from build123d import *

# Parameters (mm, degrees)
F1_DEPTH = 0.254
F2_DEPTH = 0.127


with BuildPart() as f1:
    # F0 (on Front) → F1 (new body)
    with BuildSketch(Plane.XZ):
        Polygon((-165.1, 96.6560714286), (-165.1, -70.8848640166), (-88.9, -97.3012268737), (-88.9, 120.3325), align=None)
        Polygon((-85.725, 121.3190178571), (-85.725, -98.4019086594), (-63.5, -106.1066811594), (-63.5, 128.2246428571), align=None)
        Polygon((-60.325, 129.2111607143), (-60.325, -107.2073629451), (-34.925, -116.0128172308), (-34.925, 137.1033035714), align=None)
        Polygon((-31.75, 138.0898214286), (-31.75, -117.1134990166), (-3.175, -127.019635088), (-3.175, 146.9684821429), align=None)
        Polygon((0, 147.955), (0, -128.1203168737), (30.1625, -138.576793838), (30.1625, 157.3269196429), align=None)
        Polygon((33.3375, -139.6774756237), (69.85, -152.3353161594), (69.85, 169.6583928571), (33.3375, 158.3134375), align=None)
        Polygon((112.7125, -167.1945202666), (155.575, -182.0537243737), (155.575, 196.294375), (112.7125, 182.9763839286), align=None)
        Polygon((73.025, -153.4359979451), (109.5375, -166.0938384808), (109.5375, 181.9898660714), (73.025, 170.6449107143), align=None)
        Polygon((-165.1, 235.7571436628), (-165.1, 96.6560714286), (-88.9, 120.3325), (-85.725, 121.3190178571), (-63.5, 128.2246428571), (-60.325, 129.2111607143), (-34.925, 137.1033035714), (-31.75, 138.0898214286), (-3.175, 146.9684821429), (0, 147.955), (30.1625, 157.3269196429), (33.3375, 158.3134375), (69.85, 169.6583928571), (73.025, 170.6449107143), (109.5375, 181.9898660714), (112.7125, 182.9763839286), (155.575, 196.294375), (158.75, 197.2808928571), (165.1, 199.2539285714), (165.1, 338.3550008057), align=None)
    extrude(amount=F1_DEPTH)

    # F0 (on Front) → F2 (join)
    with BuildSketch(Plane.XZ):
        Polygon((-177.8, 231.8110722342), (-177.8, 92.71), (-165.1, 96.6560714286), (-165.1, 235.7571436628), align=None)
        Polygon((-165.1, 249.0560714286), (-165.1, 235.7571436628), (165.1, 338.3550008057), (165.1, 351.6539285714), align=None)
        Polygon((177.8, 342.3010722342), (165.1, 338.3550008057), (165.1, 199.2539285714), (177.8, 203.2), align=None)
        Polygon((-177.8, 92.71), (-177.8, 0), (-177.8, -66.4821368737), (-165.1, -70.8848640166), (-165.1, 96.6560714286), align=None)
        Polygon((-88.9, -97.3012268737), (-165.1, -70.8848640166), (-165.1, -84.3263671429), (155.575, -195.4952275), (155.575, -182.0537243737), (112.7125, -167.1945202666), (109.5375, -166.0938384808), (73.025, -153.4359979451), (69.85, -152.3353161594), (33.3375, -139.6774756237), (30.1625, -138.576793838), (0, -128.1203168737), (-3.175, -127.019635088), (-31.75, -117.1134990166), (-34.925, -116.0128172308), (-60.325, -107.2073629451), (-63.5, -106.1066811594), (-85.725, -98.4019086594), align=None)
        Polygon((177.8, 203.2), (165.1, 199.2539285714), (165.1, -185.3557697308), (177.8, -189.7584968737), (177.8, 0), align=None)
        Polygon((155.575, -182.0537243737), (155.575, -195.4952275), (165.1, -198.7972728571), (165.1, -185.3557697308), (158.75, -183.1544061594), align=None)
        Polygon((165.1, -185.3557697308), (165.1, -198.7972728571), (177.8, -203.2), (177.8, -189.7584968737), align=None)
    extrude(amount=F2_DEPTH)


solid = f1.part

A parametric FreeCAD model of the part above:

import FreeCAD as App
import Part
import Sketcher

V = App.Vector
Q = App.Units.Quantity


def add_polygon(sketch, points):
    """Adds a closed chain of lines whose ends are joined by coincident constraints."""
    first, n = sketch.GeometryCount, len(points)
    for a, b in zip(points, points[1:] + points[:1]):
        sketch.addGeometry(Part.LineSegment(App.Vector(*a, 0), App.Vector(*b, 0)), False)
    for i in range(n):
        sketch.addConstraint(Sketcher.Constraint("Coincident", first + i, 2, first + (i + 1) % n, 1))

doc = App.newDocument("Part")
body = doc.addObject("PartDesign::Body", "Body")

# Sketch on XZ plane
sketch1 = body.newObject("Sketcher::SketchObject", "Sketch")
sketch1.AttachmentSupport = (doc.getObject("XZ_Plane"), [""])
sketch1.MapMode = "FlatFace"
add_polygon(sketch1, [(-165.1, -70.884864), (-88.9, -97.301227), (-88.9, 120.3325), (-85.725, 121.319018), (-85.725, -98.401909), (-63.5, -106.106681), (-63.5, 128.224643), (-60.325, 129.211161), (-60.325, -107.207363), (-34.925, -116.012817), (-34.925, 137.103304), (-31.75, 138.089821), (-31.75, -117.113499), (-3.175, -127.019635), (-3.175, 146.968482), (0, 147.955), (0, -128.120317), (30.1625, -138.576794), (30.1625, 157.32692), (33.3375, 158.313437), (33.3375, -139.677476), (69.85, -152.335316), (69.85, 169.658393), (73.025, 170.644911), (73.025, -153.435998), (109.5375, -166.093838), (109.5375, 181.989866), (112.7125, 182.976384), (112.7125, -167.19452), (155.575, -182.053724), (155.575, 196.294375), (158.75, 197.280893), (165.1, 199.253929), (165.1, 338.355001), (-165.1, 235.757144)])  # lines 0-34
sketch1.addConstraint(Sketcher.Constraint("Vertical", 1))
sketch1.addConstraint(Sketcher.Constraint("Vertical", 3))
sketch1.addConstraint(Sketcher.Constraint("Vertical", 5))
sketch1.addConstraint(Sketcher.Constraint("Vertical", 7))
sketch1.addConstraint(Sketcher.Constraint("Vertical", 9))
sketch1.addConstraint(Sketcher.Constraint("Vertical", 11))
sketch1.addConstraint(Sketcher.Constraint("Vertical", 13))
sketch1.addConstraint(Sketcher.Constraint("Vertical", 15))
sketch1.addConstraint(Sketcher.Constraint("Vertical", 17))
sketch1.addConstraint(Sketcher.Constraint("Vertical", 19))
sketch1.addConstraint(Sketcher.Constraint("Vertical", 21))
sketch1.addConstraint(Sketcher.Constraint("Vertical", 23))
sketch1.addConstraint(Sketcher.Constraint("Vertical", 25))
sketch1.addConstraint(Sketcher.Constraint("Vertical", 27))
sketch1.addConstraint(Sketcher.Constraint("Vertical", 29))
sketch1.addConstraint(Sketcher.Constraint("Vertical", 32))
sketch1.addConstraint(Sketcher.Constraint("Vertical", 34))
sketch1.addConstraint(Sketcher.Constraint("PointOnObject", 14, 2, -2))
sketch1.addConstraint(Sketcher.Constraint("Parallel", 0, 4))
sketch1.addConstraint(Sketcher.Constraint("Parallel", 2, 6))
sketch1.addConstraint(Sketcher.Constraint("Parallel", 4, 8))
sketch1.addConstraint(Sketcher.Constraint("Parallel", 6, 10))
sketch1.addConstraint(Sketcher.Constraint("Parallel", 8, 12))
sketch1.addConstraint(Sketcher.Constraint("Parallel", 10, 14))
sketch1.addConstraint(Sketcher.Constraint("Parallel", 12, 16))
sketch1.addConstraint(Sketcher.Constraint("Parallel", 14, 18))
sketch1.addConstraint(Sketcher.Constraint("Parallel", 16, 20))
sketch1.addConstraint(Sketcher.Constraint("Parallel", 18, 22))
sketch1.addConstraint(Sketcher.Constraint("Parallel", 20, 24))
sketch1.addConstraint(Sketcher.Constraint("Parallel", 22, 26))
sketch1.addConstraint(Sketcher.Constraint("Parallel", 24, 28))
sketch1.addConstraint(Sketcher.Constraint("Parallel", 26, 30))
sketch1.addConstraint(Sketcher.Constraint("Parallel", 30, 31))
sketch1.addConstraint(Sketcher.Constraint("Parallel", 31, 33))
sketch1.addConstraint(Sketcher.Constraint("Equal", 2, 6))
sketch1.addConstraint(Sketcher.Constraint("Equal", 6, 10))
sketch1.addConstraint(Sketcher.Constraint("Equal", 10, 14))
sketch1.addConstraint(Sketcher.Constraint("Equal", 14, 18))
sketch1.addConstraint(Sketcher.Constraint("Equal", 18, 22))
sketch1.addConstraint(Sketcher.Constraint("Equal", 20, 24))
sketch1.addConstraint(Sketcher.Constraint("Equal", 22, 26))
sketch1.addConstraint(Sketcher.Constraint("Equal", 26, 30))
sketch1.addConstraint(Sketcher.Constraint("DistanceX", 0, 2, 4, 2, Q("1 in")))
sketch1.addConstraint(Sketcher.Constraint("DistanceX", 7, 2, 8, 2, Q("1 in")))
sketch1.addConstraint(Sketcher.Constraint("DistanceX", 11, 2, 20, 2, Q("4 in")))
sketch1.addConstraint(Sketcher.Constraint("DistanceX", 13, 2, 22, 2, Q("3 in")))
sketch1.addConstraint(Sketcher.Constraint("DistanceX", 19, 2, 24, 2, Q("3 in")))
sketch1.addConstraint(Sketcher.Constraint("DistanceX", 33, 2, 1, 2, Q("3 in")))
sketch1.addConstraint(Sketcher.Constraint("DistanceX", 0, 2, -1, 1, Q("3.5 in")))
sketch1.addConstraint(Sketcher.Constraint("DistanceX", -1, 1, 31, 2, Q("6.5 in")))
sketch1.addConstraint(Sketcher.Constraint("DistanceX", 21, 2, 30, 2, Q("3.5 in")))
sketch1.addConstraint(Sketcher.Constraint("DistanceY", -1, 1, 14, 2, Q("5.825 in")))
sketch1.addConstraint(Sketcher.Constraint("DistanceY", 29, 1, 29, 2, Q("378.348099 mm")))
sketch1.addConstraint(Sketcher.Constraint("DistanceY", -1, 1, 1, 2, Q("4.7375 in")))
sketch1.addConstraint(Sketcher.Constraint("DistanceY", 21, 2, 30, 2, Q("1.0875 in")))
sketch1.addConstraint(Sketcher.Constraint("DistanceY", 9, 1, 9, 2, Q("253.116121 mm")))
sketch1.addConstraint(Sketcher.Constraint("DistanceY", 11, 2, 11, 1, Q("255.20332 mm")))
sketch1.addConstraint(Sketcher.Constraint("DistanceY", 21, 1, 21, 2, Q("321.993709 mm")))
sketch1.addConstraint(Sketcher.Constraint("DistanceY", 23, 2, 23, 1, Q("324.080909 mm")))
sketch1.addConstraint(Sketcher.Constraint("DistanceY", 11, 2, -1, 1, Q("117.113499 mm")))
sketch1.addConstraint(Sketcher.Constraint("DistanceY", -1, 1, 32, 2, Q("338.355001 mm")))
sketch1.addConstraint(Sketcher.Constraint("DistanceY", 4, 2, 2, 2, Q("227.425699 mm")))
sketch1.addConstraint(Sketcher.Constraint("DistanceY", 15, 2, 8, 2, Q("12.1075 mm")))
sketch1.addConstraint(Sketcher.Constraint("DistanceY", 10, 2, 17, 2, Q("19.237098 mm")))
sketch1.addConstraint(Sketcher.Constraint("DistanceY", 20, 2, 15, 2, Q("24.214999 mm")))
sketch1.addConstraint(Sketcher.Constraint("DistanceY", 5, 2, 33, 2, Q("107.532501 mm")))
sketch1.addConstraint(Sketcher.Constraint("DistanceY", 7, 2, 34, 2, Q("36.322499 mm")))
sketch1.addConstraint(Sketcher.Constraint("Distance", 0, Q("80.649019 mm")))
sketch1.addConstraint(Sketcher.Constraint("Distance", 33, Q("345.772122 mm")))
sketch1.addConstraint(Sketcher.Constraint("DistanceY", 25, 1, 25, 2, Q("348.083705 mm")))
pad1 = body.newObject("PartDesign::Pad", "Pad")
pad1.Profile = sketch1
pad1.Length = Q("0.01 in")

# Sketch on XZ plane
sketch2 = body.newObject("Sketcher::SketchObject", "Sketch001")
sketch2.AttachmentSupport = (doc.getObject("XZ_Plane"), [""])
sketch2.MapMode = "FlatFace"
add_polygon(sketch2, [(-177.8, 231.811072), (-177.8, -66.482137), (-165.1, -70.884864), (-165.1, 235.757144)])  # lines 0-3
add_polygon(sketch2, [(-165.1, 249.056071), (-165.1, 235.757144), (165.1, 338.355001), (165.1, 351.653929)])  # lines 4-7
add_polygon(sketch2, [(177.8, 342.301072), (165.1, 338.355001), (165.1, -185.35577), (155.575, -182.053724), (112.7125, -167.19452), (109.5375, -166.093838), (73.025, -153.435998), (69.85, -152.335316), (33.3375, -139.677476), (30.1625, -138.576794), (0, -128.120317), (-3.175, -127.019635), (-31.75, -117.113499), (-34.925, -116.012817), (-60.325, -107.207363), (-63.5, -106.106681), (-85.725, -98.401909), (-88.9, -97.301227), (-165.1, -70.884864), (-165.1, -84.326367), (155.575, -195.495227), (165.1, -198.797273), (177.8, -203.2)])  # lines 8-30
sketch2.addConstraint(Sketcher.Constraint("Vertical", 0))
sketch2.addConstraint(Sketcher.Constraint("Vertical", 2))
sketch2.addConstraint(Sketcher.Constraint("Vertical", 4))
sketch2.addConstraint(Sketcher.Constraint("Vertical", 6))
sketch2.addConstraint(Sketcher.Constraint("Vertical", 9))
sketch2.addConstraint(Sketcher.Constraint("Vertical", 26))
sketch2.addConstraint(Sketcher.Constraint("Vertical", 30))
sketch2.addConstraint(Sketcher.Constraint("Coincident", 4, 2, 2, 2))
sketch2.addConstraint(Sketcher.Constraint("Coincident", 8, 2, 5, 2))
sketch2.addConstraint(Sketcher.Constraint("Coincident", 25, 2, 1, 2))
sketch2.addConstraint(Sketcher.Constraint("PointOnObject", 17, 2, -2))
sketch2.addConstraint(Sketcher.Constraint("Parallel", 3, 5))
sketch2.addConstraint(Sketcher.Constraint("Parallel", 5, 7))
sketch2.addConstraint(Sketcher.Constraint("Parallel", 7, 8))
sketch2.addConstraint(Sketcher.Constraint("Parallel", 1, 10))
sketch2.addConstraint(Sketcher.Constraint("Parallel", 10, 11))
sketch2.addConstraint(Sketcher.Constraint("Parallel", 11, 12))
sketch2.addConstraint(Sketcher.Constraint("Parallel", 12, 13))
sketch2.addConstraint(Sketcher.Constraint("Parallel", 13, 14))
sketch2.addConstraint(Sketcher.Constraint("Parallel", 14, 15))
sketch2.addConstraint(Sketcher.Constraint("Parallel", 15, 16))
sketch2.addConstraint(Sketcher.Constraint("Parallel", 16, 17))
sketch2.addConstraint(Sketcher.Constraint("Parallel", 17, 18))
sketch2.addConstraint(Sketcher.Constraint("Parallel", 18, 19))
sketch2.addConstraint(Sketcher.Constraint("Parallel", 19, 20))
sketch2.addConstraint(Sketcher.Constraint("Parallel", 20, 21))
sketch2.addConstraint(Sketcher.Constraint("Parallel", 21, 22))
sketch2.addConstraint(Sketcher.Constraint("Parallel", 22, 23))
sketch2.addConstraint(Sketcher.Constraint("Parallel", 23, 24))
sketch2.addConstraint(Sketcher.Constraint("Parallel", 24, 25))
sketch2.addConstraint(Sketcher.Constraint("Parallel", 25, 27))
sketch2.addConstraint(Sketcher.Constraint("Parallel", 27, 28))
sketch2.addConstraint(Sketcher.Constraint("Parallel", 28, 29))
sketch2.addConstraint(Sketcher.Constraint("Vertical", 10, 2, 27, 2))
sketch2.addConstraint(Sketcher.Constraint("Vertical", 9, 2, 28, 2))
sketch2.addConstraint(Sketcher.Constraint("Equal", 3, 8))
sketch2.addConstraint(Sketcher.Constraint("Equal", 12, 14))
sketch2.addConstraint(Sketcher.Constraint("Equal", 13, 15))
sketch2.addConstraint(Sketcher.Constraint("Equal", 14, 16))
sketch2.addConstraint(Sketcher.Constraint("Equal", 16, 18))
sketch2.addConstraint(Sketcher.Constraint("Equal", 18, 20))
sketch2.addConstraint(Sketcher.Constraint("Equal", 20, 22))
sketch2.addConstraint(Sketcher.Constraint("Equal", 22, 24))
sketch2.addConstraint(Sketcher.Constraint("DistanceX", 0, 2, -1, 1, Q("7 in")))
sketch2.addConstraint(Sketcher.Constraint("DistanceX", -1, 1, 29, 2, Q("7 in")))
sketch2.addConstraint(Sketcher.Constraint("DistanceY", 29, 2, -1, 1, Q("8 in")))
sketch2.addConstraint(Sketcher.Constraint("DistanceX", 2, 2, 5, 2, Q("13 in")))
sketch2.addConstraint(Sketcher.Constraint("DistanceX", 15, 2, 12, 2, Q("3 in")))
sketch2.addConstraint(Sketcher.Constraint("DistanceX", 18, 2, 13, 2, Q("3 in")))
sketch2.addConstraint(Sketcher.Constraint("DistanceX", 19, 2, 14, 2, Q("4 in")))
sketch2.addConstraint(Sketcher.Constraint("DistanceX", 21, 2, 20, 2, Q("1 in")))
sketch2.addConstraint(Sketcher.Constraint("DistanceX", 23, 2, 21, 2, Q("1 in")))
sketch2.addConstraint(Sketcher.Constraint("DistanceX", 25, 2, 24, 2, Q("3 in")))
sketch2.addConstraint(Sketcher.Constraint("DistanceX", 13, 2, 10, 2, Q("3.25 in")))
sketch2.addConstraint(Sketcher.Constraint("DistanceY", 1, 2, 7, 2, Q("12.5960998 in")))
sketch2.addConstraint(Sketcher.Constraint("DistanceY", 0, 2, 0, 1, Q("298.293209 mm")))
sketch2.addConstraint(Sketcher.Constraint("DistanceY", 9, 2, 9, 1, Q("523.710771 mm")))
sketch2.addConstraint(Sketcher.Constraint("DistanceY", -1, 1, 5, 2, Q("338.355001 mm")))
sketch2.addConstraint(Sketcher.Constraint("DistanceY", 19, 2, -1, 1, Q("117.113499 mm")))
pad2 = body.newObject("PartDesign::Pad", "Pad001")
pad2.Profile = sketch2
pad2.Length = Q("0.005 in")

doc.recompute()
